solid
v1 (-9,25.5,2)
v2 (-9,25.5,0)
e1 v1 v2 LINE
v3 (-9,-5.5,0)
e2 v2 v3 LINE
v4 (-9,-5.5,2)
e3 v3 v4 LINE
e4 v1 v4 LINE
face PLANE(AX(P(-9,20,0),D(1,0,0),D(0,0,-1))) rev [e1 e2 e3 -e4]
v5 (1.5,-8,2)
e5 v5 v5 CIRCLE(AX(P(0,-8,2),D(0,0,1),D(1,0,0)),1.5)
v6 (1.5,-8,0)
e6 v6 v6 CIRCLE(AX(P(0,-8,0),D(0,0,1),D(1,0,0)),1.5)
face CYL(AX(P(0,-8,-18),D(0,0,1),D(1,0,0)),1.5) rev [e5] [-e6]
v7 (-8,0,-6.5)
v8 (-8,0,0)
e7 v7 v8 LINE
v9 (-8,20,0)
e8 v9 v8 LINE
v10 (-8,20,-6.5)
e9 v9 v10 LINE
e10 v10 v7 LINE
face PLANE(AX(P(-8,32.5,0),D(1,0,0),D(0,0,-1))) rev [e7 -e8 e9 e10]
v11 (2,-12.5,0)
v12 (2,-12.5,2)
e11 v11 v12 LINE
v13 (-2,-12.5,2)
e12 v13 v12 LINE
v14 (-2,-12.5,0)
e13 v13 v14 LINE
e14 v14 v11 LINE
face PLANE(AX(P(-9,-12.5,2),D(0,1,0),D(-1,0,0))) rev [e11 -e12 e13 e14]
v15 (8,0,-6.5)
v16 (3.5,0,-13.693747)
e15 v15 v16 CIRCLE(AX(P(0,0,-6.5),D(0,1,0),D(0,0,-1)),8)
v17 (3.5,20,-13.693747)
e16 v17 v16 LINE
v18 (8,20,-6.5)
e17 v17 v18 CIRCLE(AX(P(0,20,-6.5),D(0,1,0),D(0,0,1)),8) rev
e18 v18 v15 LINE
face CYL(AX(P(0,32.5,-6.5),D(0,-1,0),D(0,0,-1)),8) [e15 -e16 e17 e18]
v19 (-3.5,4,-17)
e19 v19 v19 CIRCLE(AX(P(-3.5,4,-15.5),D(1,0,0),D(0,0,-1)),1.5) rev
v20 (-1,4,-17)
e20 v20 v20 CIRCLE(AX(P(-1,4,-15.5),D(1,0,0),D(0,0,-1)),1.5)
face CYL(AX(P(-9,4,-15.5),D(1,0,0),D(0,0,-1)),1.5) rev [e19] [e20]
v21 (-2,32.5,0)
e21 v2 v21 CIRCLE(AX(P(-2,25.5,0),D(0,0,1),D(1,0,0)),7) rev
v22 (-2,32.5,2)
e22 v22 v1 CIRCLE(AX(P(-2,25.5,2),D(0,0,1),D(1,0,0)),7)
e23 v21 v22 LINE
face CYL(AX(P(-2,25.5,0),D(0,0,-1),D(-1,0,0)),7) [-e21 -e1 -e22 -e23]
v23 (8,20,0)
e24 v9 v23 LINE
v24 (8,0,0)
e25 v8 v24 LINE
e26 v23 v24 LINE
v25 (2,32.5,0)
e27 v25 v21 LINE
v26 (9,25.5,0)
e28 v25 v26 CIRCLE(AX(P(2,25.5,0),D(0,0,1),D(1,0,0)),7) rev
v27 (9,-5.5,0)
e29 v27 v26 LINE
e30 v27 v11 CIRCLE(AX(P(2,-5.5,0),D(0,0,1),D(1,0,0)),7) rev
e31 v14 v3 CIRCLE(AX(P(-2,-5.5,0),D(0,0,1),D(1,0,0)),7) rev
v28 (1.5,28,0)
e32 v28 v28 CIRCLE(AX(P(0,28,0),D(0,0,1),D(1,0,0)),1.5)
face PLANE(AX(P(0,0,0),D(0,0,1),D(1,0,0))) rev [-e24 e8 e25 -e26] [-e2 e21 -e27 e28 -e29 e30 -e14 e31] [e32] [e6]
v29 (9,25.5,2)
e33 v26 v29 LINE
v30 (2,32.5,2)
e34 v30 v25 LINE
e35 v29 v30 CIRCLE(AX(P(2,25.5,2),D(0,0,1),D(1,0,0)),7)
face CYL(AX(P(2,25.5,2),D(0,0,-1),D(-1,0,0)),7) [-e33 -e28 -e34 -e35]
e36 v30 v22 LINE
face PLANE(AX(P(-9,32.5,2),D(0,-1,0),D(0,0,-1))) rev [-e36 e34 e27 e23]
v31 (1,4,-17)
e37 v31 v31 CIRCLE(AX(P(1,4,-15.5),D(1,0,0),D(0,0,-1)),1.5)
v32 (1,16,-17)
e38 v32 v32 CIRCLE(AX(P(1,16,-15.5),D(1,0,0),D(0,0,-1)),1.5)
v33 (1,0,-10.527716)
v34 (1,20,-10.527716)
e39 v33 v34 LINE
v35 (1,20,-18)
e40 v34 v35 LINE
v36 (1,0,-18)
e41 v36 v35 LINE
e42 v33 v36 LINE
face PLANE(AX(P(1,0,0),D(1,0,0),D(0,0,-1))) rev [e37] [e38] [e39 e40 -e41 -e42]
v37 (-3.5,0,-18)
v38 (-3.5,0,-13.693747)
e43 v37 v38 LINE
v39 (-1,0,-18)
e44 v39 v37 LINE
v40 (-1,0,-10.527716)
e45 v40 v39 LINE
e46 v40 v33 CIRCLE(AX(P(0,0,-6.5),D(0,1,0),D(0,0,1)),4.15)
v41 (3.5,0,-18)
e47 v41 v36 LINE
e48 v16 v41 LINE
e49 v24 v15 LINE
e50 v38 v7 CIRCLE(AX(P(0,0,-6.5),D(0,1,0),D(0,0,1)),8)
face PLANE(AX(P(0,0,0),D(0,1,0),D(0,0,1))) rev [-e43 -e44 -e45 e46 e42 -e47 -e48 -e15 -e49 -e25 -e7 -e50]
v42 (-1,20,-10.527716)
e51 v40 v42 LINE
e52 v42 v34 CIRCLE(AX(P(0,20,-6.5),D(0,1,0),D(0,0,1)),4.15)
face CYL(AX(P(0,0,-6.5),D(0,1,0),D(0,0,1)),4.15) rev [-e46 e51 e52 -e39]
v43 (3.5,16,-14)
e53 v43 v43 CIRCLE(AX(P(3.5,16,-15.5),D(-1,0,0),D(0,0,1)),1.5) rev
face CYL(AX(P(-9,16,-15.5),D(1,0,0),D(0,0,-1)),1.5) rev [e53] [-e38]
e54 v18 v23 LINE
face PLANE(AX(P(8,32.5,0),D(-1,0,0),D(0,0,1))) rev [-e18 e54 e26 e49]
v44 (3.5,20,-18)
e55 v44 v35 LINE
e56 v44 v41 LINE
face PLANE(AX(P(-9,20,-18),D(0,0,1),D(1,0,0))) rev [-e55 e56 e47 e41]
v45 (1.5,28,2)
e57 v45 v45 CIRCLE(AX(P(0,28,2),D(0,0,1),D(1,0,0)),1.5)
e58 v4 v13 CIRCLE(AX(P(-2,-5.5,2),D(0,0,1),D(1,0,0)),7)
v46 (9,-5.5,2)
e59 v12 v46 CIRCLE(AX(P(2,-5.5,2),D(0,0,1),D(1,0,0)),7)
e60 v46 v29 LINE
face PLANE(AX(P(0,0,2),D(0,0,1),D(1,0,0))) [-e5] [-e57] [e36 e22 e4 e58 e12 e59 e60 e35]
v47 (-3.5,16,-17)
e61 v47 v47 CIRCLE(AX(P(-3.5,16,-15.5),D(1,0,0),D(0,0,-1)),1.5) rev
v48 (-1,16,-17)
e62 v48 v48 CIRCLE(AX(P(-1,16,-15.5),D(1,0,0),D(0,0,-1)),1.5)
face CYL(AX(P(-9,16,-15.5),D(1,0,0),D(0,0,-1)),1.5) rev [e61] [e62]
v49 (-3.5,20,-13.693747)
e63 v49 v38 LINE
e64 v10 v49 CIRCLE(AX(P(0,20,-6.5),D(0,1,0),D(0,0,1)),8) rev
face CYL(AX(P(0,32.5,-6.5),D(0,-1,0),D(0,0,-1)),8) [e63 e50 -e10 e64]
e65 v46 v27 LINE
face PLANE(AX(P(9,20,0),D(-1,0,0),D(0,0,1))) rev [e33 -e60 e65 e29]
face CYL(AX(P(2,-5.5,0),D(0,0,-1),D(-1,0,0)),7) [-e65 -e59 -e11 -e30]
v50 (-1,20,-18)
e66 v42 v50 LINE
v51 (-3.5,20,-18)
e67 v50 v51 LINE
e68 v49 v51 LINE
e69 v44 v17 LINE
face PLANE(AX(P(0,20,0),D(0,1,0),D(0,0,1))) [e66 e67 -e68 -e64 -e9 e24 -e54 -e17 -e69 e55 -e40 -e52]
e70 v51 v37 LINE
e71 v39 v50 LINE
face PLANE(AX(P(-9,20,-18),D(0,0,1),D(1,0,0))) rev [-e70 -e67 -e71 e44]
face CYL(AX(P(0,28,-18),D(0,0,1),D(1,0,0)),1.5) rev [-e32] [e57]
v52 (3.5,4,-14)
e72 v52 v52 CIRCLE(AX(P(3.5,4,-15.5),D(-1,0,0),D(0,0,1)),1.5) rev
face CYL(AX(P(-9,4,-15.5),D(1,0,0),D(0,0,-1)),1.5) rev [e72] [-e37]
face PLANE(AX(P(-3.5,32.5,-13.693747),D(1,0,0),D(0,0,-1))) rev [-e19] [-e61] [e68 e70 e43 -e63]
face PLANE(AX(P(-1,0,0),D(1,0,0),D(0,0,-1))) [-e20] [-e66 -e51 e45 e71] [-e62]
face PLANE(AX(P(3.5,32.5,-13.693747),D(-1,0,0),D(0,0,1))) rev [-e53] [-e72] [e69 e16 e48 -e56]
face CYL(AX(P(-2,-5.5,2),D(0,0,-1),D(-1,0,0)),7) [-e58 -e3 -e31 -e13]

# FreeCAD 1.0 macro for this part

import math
import FreeCAD as App
import Part
import Sketcher
Q = App.Units.Quantity


def edges_at(feature, points):
    """Names of the edges that pass closest to the given points."""
    edges = feature.Shape.Edges
    near = lambda p: min(range(len(edges)), key=lambda i: edges[i].distToShape(Part.Vertex(*p))[0])
    return sorted({f"Edge{near(p) + 1}" for p in points})


def add_polygon(sketch, points):
    """Adds a closed chain of lines whose ends are joined by coincident constraints."""
    first, n = sketch.GeometryCount, len(points)
    for a, b in zip(points, points[1:] + points[:1]):
        sketch.addGeometry(Part.LineSegment(App.Vector(*a, 0), App.Vector(*b, 0)), False)
    for i in range(n):
        sketch.addConstraint(Sketcher.Constraint("Coincident", first + i, 2, first + (i + 1) % n, 1))

doc = App.newDocument("Part")
body = doc.addObject("PartDesign::Body", "Body")

sketch1 = body.newObject("Sketcher::SketchObject", "Sketch")
sketch1.AttachmentSupport = (doc.getObject("XZ_Plane"), [""])
sketch1.MapMode = "FlatFace"
add_polygon(sketch1, [(-9, -18), (-9, 0), (9, 0), (9, -18)])
sketch1.addConstraint([
    Sketcher.Constraint("Vertical", 0),
    Sketcher.Constraint("Horizontal", 1),
    Sketcher.Constraint("Vertical", 2),
    Sketcher.Constraint("Horizontal", 3),
    Sketcher.Constraint("Symmetric", 0, 2, 1, 2, -1, 1),
    Sketcher.Constraint("Equal", 3, 0),
    Sketcher.Constraint("DistanceX", 1, 1, 1, 2, Q("18 mm")),
])
pad1 = body.newObject("PartDesign::Pad", "Pad")
pad1.Profile = sketch1
pad1.Length = 20
pad1.Reversed = True

sketch2 = body.newObject("Sketcher::SketchObject", "Sketch001")
sketch2.AttachmentSupport = (doc.getObject("XZ_Plane"), [""])
sketch2.MapMode = "FlatFace"
sketch2.AttachmentOffset = App.Placement(App.Vector(0, 0, -20), App.Rotation())
sketch2.addGeometry([
    Part.LineSegment(App.Vector(1, -10.5, 0), App.Vector(1, -18, 0)),
    Part.LineSegment(App.Vector(1, -18, 0), App.Vector(-1, -18, 0)),
    Part.LineSegment(App.Vector(-1, -18, 0), App.Vector(-1, -10.5, 0)),
    Part.ArcOfCircle(Part.Circle(App.Vector(0, -6.5, 0), App.Vector(0, 0, 1), 4.2), math.radians(-76), math.radians(256)),
], False)
sketch2.addConstraint([
    Sketcher.Constraint("Coincident", 0, 2, 1, 1),
    Sketcher.Constraint("Coincident", 1, 2, 2, 1),
    Sketcher.Constraint("Coincident", 2, 2, 3, 2),
    Sketcher.Constraint("Coincident", 3, 1, 0, 1),
    Sketcher.Constraint("Vertical", 0),
    Sketcher.Constraint("Horizontal", 1),
    Sketcher.Constraint("Vertical", 2),
    Sketcher.Constraint("Symmetric", 2, 2, 3, 1, -2),
    Sketcher.Constraint("DistanceX", 1, 2, 1, 1, Q("2 mm")),
    Sketcher.Constraint("Radius", 3, Q("4.15 mm")),
    Sketcher.Constraint("DistanceY", 0, 2, -1, 1, Q("18 mm")),
    Sketcher.Constraint("DistanceY", 3, 3, -1, 1, Q("6.5 mm")),
])
pocket1 = body.newObject("PartDesign::Pocket", "Pocket")
pocket1.Profile = sketch2
pocket1.Type = "ThroughAll"
pocket1.Reversed = True

sketch3 = body.newObject("Sketcher::SketchObject", "Sketch002")
sketch3.AttachmentSupport = (doc.getObject("YZ_Plane"), [""])
sketch3.MapMode = "FlatFace"
sketch3.AttachmentOffset = App.Placement(App.Vector(0, 0, 9), App.Rotation())
sketch3.addGeometry([
    Part.Circle(App.Vector(16, -15.5, 0), App.Vector(0, 0, 1), 1.5),
    Part.Circle(App.Vector(4, -15.5, 0), App.Vector(0, 0, 1), 1.5),
], False)
sketch3.addConstraint([
    Sketcher.Constraint("Equal", 0, 1),
    Sketcher.Constraint("Horizontal", 0, 3, 1, 3),
    Sketcher.Constraint("Diameter", 0, Q("3 mm")),
    Sketcher.Constraint("DistanceX", -1, 1, 0, 3, Q("16 mm")),
    Sketcher.Constraint("DistanceX", -1, 1, 1, 3, Q("4 mm")),
    Sketcher.Constraint("DistanceY", 0, 3, -1, 1, Q("15.5 mm")),
])
pocket2 = body.newObject("PartDesign::Pocket", "Pocket001")
pocket2.Profile = sketch3
pocket2.Type = "ThroughAll"

sketch4 = body.newObject("Sketcher::SketchObject", "Sketch003")
sketch4.AttachmentSupport = (doc.getObject("XY_Plane"), [""])
sketch4.MapMode = "FlatFace"
add_polygon(sketch4, [(-9, 32), (-9, -12), (9, -12), (9, 32)])
sketch4.addConstraint([
    Sketcher.Constraint("Vertical", 0),
    Sketcher.Constraint("Horizontal", 1),
    Sketcher.Constraint("Vertical", 2),
    Sketcher.Constraint("Horizontal", 3),
    Sketcher.Constraint("DistanceX", 1, 1, 1, 2, Q("18 mm")),
    Sketcher.Constraint("DistanceY", 0, 2, 0, 1, Q("45 mm")),
    Sketcher.Constraint("DistanceX", 0, 2, -1, 1, Q("9 mm")),
    Sketcher.Constraint("DistanceY", 0, 2, -1, 1, Q("12.5 mm")),
])
pad2 = body.newObject("PartDesign::Pad", "Pad001")
pad2.Profile = sketch4
pad2.Length = 2

sketch5 = body.newObject("Sketcher::SketchObject", "Sketch004")
sketch5.AttachmentSupport = (doc.getObject("XY_Plane"), [""])
sketch5.MapMode = "FlatFace"
sketch5.AttachmentOffset = App.Placement(App.Vector(0, 0, 2), App.Rotation())
sketch5.addGeometry([
    Part.Circle(App.Vector(0, 28, 0), App.Vector(0, 0, 1), 1.5),
    Part.Circle(App.Vector(0, -8, 0), App.Vector(0, 0, 1), 1.5),
], False)
sketch5.addConstraint([
    Sketcher.Constraint("Equal", 0, 1),
    Sketcher.Constraint("PointOnObject", 0, 3, -2),
    Sketcher.Constraint("PointOnObject", 1, 3, -2),
    Sketcher.Constraint("Diameter", 0, Q("3 mm")),
    Sketcher.Constraint("DistanceY", -1, 1, 0, 3, Q("28 mm")),
    Sketcher.Constraint("DistanceY", 1, 3, -1, 1, Q("8 mm")),
])
pocket3 = body.newObject("PartDesign::Pocket", "Pocket002")
pocket3.Profile = sketch5
pocket3.Type = "ThroughAll"
doc.recompute()

fillet = body.newObject("PartDesign::Fillet", "Fillet")
fillet.Base = (pocket3, edges_at(pocket3, [
    (9, -12.5, 1),
    (9, 32.5, 1),
    (-9, 32.5, 1),
    (-9, -12.5, 1),
]))
fillet.Radius = 7

sketch6 = body.newObject("Sketcher::SketchObject", "Sketch005")
sketch6.AttachmentSupport = (doc.getObject("XZ_Plane"), [""])
sketch6.MapMode = "FlatFace"
sketch6.addGeometry([
    Part.LineSegment(App.Vector(-3.5, -18, 0), App.Vector(-3.5, -13.7, 0)),
    Part.ArcOfCircle(Part.Circle(App.Vector(0, -6.5, 0), App.Vector(0, 0, 1), 8), math.radians(-180), math.radians(-116)),
    Part.LineSegment(App.Vector(-8, -6.5, 0), App.Vector(-8, 0, 0)),
    Part.LineSegment(App.Vector(-8, 0, 0), App.Vector(-9, 0, 0)),
    Part.LineSegment(App.Vector(-9, 0, 0), App.Vector(-9, -18, 0)),
    Part.LineSegment(App.Vector(-9, -18, 0), App.Vector(-3.5, -18, 0)),
    Part.LineSegment(App.Vector(8, 0, 0), App.Vector(8, -6.5, 0)),
    Part.ArcOfCircle(Part.Circle(App.Vector(0, -6.5, 0), App.Vector(0, 0, 1), 8), math.radians(-64), math.radians(0)),
    Part.LineSegment(App.Vector(3.5, -13.7, 0), App.Vector(3.5, -18, 0)),
    Part.LineSegment(App.Vector(3.5, -18, 0), App.Vector(9, -18, 0)),
    Part.LineSegment(App.Vector(9, -18, 0), App.Vector(9, 0, 0)),
    Part.LineSegment(App.Vector(9, 0, 0), App.Vector(8, 0, 0)),
], False)
sketch6.addConstraint([
    Sketcher.Constraint("Coincident", 0, 2, 1, 2),
    Sketcher.Constraint("Tangent", 1, 1, 2, 1),
    Sketcher.Constraint("Coincident", 2, 2, 3, 1),
    Sketcher.Constraint("Coincident", 3, 2, 4, 1),
    Sketcher.Constraint("Coincident", 4, 2, 5, 1),
    Sketcher.Constraint("Coincident", 5, 2, 0, 1),
    Sketcher.Constraint("Tangent", 6, 2, 7, 2),
    Sketcher.Constraint("Coincident", 7, 1, 8, 1),
    Sketcher.Constraint("Coincident", 8, 2, 9, 1),
    Sketcher.Constraint("Coincident", 9, 2, 10, 1),
    Sketcher.Constraint("Coincident", 10, 2, 11, 1),
    Sketcher.Constraint("Coincident", 11, 2, 6, 1),
    Sketcher.Constraint("Vertical", 0),
    Sketcher.Constraint("Vertical", 2),
    Sketcher.Constraint("Horizontal", 3),
    Sketcher.Constraint("Vertical", 4),
    Sketcher.Constraint("Horizontal", 5),
    Sketcher.Constraint("Vertical", 6),
    Sketcher.Constraint("Vertical", 8),
    Sketcher.Constraint("Horizontal", 9),
    Sketcher.Constraint("Vertical", 10),
    Sketcher.Constraint("Horizontal", 11),
    Sketcher.Constraint("Coincident", 7, 3, 1, 3),
    Sketcher.Constraint("Equal", 1, 7),
    Sketcher.Constraint("Symmetric", 3, 2, 10, 2, -1, 1),
    Sketcher.Constraint("Symmetric", 0, 2, 7, 1, -2),
    Sketcher.Constraint("PointOnObject", 2, 2, -1),
    Sketcher.Constraint("Horizontal", 5, 2, 8, 2),
    Sketcher.Constraint("Radius", 1, Q("8 mm")),
    Sketcher.Constraint("DistanceX", 3, 2, 3, 1, Q("1 mm")),
    Sketcher.Constraint("DistanceY", 4, 2, 4, 1, Q("18 mm")),
    Sketcher.Constraint("DistanceX", 5, 1, 5, 2, Q("5.5 mm")),
    Sketcher.Constraint("DistanceY", 2, 1, 2, 2, Q("6.5 mm")),
])
pocket4 = body.newObject("PartDesign::Pocket", "Pocket003")
pocket4.Profile = sketch6
pocket4.Type = "ThroughAll"

doc.recompute()
